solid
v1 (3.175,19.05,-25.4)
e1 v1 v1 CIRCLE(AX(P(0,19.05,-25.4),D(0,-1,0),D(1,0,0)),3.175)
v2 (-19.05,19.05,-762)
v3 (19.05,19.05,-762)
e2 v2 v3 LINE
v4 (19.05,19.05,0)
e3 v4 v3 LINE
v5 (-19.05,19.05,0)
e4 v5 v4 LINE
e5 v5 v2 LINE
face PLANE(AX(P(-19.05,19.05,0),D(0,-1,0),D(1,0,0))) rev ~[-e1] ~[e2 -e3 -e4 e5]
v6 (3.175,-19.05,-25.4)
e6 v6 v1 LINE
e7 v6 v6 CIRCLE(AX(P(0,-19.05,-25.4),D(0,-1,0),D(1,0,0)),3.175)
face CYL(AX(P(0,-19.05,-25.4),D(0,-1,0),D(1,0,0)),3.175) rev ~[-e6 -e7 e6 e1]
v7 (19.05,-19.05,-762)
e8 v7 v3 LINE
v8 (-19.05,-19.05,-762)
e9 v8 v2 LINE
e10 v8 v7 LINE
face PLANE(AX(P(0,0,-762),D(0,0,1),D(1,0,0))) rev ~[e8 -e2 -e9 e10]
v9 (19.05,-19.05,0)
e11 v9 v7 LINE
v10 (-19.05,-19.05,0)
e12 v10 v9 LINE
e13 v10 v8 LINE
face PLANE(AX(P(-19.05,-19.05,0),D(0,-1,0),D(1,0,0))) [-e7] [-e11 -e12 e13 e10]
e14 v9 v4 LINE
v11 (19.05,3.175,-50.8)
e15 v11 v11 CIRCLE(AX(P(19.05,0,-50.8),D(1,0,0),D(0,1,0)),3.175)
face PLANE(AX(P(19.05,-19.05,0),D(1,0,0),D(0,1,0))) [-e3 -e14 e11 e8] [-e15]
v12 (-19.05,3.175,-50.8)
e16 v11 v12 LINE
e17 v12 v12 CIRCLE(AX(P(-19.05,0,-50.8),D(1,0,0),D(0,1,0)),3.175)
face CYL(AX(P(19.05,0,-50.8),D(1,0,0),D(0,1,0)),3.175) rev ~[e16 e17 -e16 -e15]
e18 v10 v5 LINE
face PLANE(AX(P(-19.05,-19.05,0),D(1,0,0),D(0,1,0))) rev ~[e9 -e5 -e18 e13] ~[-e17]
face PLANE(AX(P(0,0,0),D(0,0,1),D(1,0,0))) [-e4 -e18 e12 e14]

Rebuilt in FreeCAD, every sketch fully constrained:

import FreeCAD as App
import Part
import Sketcher
Q = App.Units.Quantity

doc = App.newDocument("Part")
body = doc.addObject("PartDesign::Body", "Body")

sketch1 = body.newObject("Sketcher::SketchObject", "Sketch")
sketch1.AttachmentSupport = (doc.getObject("XY_Plane"), [""])
sketch1.MapMode = "FlatFace"
sketch1.addGeometry([
    Part.LineSegment(App.Vector(-19.05, 19.05, 0), App.Vector(-19.05, -19.05, 0)),
    Part.LineSegment(App.Vector(-19.05, -19.05, 0), App.Vector(19.05, -19.05, 0)),
    Part.LineSegment(App.Vector(19.05, -19.05, 0), App.Vector(19.05, 19.05, 0)),
    Part.LineSegment(App.Vector(19.05, 19.05, 0), App.Vector(-19.05, 19.05, 0)),
], False)
sketch1.addConstraint([
    Sketcher.Constraint("Coincident", 0, 2, 1, 1),
    Sketcher.Constraint("Coincident", 1, 2, 2, 1),
    Sketcher.Constraint("Coincident", 2, 2, 3, 1),
    Sketcher.Constraint("Coincident", 3, 2, 0, 1),
    Sketcher.Constraint("Vertical", 0),
    Sketcher.Constraint("Horizontal", 1),
    Sketcher.Constraint("Vertical", 2),
    Sketcher.Constraint("Horizontal", 3),
    Sketcher.Constraint("Symmetric", 0, 2, 2, 2, -1, 1),
    Sketcher.Constraint("Equal", 3, 0),
    Sketcher.Constraint("DistanceX", 1, 1, 1, 2, Q("1.5 in")),
])
pad1 = body.newObject("PartDesign::Pad", "Pad")
pad1.Profile = sketch1
pad1.Length = Q("30 in")
pad1.Reversed = True

sketch2 = body.newObject("Sketcher::SketchObject", "Sketch001")
sketch2.AttachmentSupport = (doc.getObject("XZ_Plane"), [""])
sketch2.MapMode = "FlatFace"
sketch2.AttachmentOffset = App.Placement(App.Vector(0, 0, 0.75 * 25.4), App.Rotation())
sketch2.addGeometry(Part.Circle(App.Vector(0, -25.4, 0), App.Vector(0, 0, 1), 3.175), False)
sketch2.addConstraint([
    Sketcher.Constraint("PointOnObject", 0, 3, -2),
    Sketcher.Constraint("Diameter", 0, Q("0.25 in")),
    Sketcher.Constraint("DistanceY", 0, 3, -1, 1, Q("1 in")),
])
pocket1 = body.newObject("PartDesign::Pocket", "Pocket")
pocket1.Profile = sketch2
pocket1.Type = "ThroughAll"

sketch3 = body.newObject("Sketcher::SketchObject", "Sketch002")
sketch3.AttachmentSupport = (doc.getObject("YZ_Plane"), [""])
sketch3.MapMode = "FlatFace"
sketch3.AttachmentOffset = App.Placement(App.Vector(0, 0, 0.75 * 25.4), App.Rotation())
sketch3.addGeometry(Part.Circle(App.Vector(0, -50.8, 0), App.Vector(0, 0, 1), 3.175), False)
sketch3.addConstraint([
    Sketcher.Constraint("PointOnObject", 0, 3, -2),
    Sketcher.Constraint("Diameter", 0, Q("0.25 in")),
    Sketcher.Constraint("DistanceY", 0, 3, -1, 1, Q("2 in")),
])
pocket2 = body.newObject("PartDesign::Pocket", "Pocket001")
pocket2.Profile = sketch3
pocket2.Type = "ThroughAll"

doc.recompute()
